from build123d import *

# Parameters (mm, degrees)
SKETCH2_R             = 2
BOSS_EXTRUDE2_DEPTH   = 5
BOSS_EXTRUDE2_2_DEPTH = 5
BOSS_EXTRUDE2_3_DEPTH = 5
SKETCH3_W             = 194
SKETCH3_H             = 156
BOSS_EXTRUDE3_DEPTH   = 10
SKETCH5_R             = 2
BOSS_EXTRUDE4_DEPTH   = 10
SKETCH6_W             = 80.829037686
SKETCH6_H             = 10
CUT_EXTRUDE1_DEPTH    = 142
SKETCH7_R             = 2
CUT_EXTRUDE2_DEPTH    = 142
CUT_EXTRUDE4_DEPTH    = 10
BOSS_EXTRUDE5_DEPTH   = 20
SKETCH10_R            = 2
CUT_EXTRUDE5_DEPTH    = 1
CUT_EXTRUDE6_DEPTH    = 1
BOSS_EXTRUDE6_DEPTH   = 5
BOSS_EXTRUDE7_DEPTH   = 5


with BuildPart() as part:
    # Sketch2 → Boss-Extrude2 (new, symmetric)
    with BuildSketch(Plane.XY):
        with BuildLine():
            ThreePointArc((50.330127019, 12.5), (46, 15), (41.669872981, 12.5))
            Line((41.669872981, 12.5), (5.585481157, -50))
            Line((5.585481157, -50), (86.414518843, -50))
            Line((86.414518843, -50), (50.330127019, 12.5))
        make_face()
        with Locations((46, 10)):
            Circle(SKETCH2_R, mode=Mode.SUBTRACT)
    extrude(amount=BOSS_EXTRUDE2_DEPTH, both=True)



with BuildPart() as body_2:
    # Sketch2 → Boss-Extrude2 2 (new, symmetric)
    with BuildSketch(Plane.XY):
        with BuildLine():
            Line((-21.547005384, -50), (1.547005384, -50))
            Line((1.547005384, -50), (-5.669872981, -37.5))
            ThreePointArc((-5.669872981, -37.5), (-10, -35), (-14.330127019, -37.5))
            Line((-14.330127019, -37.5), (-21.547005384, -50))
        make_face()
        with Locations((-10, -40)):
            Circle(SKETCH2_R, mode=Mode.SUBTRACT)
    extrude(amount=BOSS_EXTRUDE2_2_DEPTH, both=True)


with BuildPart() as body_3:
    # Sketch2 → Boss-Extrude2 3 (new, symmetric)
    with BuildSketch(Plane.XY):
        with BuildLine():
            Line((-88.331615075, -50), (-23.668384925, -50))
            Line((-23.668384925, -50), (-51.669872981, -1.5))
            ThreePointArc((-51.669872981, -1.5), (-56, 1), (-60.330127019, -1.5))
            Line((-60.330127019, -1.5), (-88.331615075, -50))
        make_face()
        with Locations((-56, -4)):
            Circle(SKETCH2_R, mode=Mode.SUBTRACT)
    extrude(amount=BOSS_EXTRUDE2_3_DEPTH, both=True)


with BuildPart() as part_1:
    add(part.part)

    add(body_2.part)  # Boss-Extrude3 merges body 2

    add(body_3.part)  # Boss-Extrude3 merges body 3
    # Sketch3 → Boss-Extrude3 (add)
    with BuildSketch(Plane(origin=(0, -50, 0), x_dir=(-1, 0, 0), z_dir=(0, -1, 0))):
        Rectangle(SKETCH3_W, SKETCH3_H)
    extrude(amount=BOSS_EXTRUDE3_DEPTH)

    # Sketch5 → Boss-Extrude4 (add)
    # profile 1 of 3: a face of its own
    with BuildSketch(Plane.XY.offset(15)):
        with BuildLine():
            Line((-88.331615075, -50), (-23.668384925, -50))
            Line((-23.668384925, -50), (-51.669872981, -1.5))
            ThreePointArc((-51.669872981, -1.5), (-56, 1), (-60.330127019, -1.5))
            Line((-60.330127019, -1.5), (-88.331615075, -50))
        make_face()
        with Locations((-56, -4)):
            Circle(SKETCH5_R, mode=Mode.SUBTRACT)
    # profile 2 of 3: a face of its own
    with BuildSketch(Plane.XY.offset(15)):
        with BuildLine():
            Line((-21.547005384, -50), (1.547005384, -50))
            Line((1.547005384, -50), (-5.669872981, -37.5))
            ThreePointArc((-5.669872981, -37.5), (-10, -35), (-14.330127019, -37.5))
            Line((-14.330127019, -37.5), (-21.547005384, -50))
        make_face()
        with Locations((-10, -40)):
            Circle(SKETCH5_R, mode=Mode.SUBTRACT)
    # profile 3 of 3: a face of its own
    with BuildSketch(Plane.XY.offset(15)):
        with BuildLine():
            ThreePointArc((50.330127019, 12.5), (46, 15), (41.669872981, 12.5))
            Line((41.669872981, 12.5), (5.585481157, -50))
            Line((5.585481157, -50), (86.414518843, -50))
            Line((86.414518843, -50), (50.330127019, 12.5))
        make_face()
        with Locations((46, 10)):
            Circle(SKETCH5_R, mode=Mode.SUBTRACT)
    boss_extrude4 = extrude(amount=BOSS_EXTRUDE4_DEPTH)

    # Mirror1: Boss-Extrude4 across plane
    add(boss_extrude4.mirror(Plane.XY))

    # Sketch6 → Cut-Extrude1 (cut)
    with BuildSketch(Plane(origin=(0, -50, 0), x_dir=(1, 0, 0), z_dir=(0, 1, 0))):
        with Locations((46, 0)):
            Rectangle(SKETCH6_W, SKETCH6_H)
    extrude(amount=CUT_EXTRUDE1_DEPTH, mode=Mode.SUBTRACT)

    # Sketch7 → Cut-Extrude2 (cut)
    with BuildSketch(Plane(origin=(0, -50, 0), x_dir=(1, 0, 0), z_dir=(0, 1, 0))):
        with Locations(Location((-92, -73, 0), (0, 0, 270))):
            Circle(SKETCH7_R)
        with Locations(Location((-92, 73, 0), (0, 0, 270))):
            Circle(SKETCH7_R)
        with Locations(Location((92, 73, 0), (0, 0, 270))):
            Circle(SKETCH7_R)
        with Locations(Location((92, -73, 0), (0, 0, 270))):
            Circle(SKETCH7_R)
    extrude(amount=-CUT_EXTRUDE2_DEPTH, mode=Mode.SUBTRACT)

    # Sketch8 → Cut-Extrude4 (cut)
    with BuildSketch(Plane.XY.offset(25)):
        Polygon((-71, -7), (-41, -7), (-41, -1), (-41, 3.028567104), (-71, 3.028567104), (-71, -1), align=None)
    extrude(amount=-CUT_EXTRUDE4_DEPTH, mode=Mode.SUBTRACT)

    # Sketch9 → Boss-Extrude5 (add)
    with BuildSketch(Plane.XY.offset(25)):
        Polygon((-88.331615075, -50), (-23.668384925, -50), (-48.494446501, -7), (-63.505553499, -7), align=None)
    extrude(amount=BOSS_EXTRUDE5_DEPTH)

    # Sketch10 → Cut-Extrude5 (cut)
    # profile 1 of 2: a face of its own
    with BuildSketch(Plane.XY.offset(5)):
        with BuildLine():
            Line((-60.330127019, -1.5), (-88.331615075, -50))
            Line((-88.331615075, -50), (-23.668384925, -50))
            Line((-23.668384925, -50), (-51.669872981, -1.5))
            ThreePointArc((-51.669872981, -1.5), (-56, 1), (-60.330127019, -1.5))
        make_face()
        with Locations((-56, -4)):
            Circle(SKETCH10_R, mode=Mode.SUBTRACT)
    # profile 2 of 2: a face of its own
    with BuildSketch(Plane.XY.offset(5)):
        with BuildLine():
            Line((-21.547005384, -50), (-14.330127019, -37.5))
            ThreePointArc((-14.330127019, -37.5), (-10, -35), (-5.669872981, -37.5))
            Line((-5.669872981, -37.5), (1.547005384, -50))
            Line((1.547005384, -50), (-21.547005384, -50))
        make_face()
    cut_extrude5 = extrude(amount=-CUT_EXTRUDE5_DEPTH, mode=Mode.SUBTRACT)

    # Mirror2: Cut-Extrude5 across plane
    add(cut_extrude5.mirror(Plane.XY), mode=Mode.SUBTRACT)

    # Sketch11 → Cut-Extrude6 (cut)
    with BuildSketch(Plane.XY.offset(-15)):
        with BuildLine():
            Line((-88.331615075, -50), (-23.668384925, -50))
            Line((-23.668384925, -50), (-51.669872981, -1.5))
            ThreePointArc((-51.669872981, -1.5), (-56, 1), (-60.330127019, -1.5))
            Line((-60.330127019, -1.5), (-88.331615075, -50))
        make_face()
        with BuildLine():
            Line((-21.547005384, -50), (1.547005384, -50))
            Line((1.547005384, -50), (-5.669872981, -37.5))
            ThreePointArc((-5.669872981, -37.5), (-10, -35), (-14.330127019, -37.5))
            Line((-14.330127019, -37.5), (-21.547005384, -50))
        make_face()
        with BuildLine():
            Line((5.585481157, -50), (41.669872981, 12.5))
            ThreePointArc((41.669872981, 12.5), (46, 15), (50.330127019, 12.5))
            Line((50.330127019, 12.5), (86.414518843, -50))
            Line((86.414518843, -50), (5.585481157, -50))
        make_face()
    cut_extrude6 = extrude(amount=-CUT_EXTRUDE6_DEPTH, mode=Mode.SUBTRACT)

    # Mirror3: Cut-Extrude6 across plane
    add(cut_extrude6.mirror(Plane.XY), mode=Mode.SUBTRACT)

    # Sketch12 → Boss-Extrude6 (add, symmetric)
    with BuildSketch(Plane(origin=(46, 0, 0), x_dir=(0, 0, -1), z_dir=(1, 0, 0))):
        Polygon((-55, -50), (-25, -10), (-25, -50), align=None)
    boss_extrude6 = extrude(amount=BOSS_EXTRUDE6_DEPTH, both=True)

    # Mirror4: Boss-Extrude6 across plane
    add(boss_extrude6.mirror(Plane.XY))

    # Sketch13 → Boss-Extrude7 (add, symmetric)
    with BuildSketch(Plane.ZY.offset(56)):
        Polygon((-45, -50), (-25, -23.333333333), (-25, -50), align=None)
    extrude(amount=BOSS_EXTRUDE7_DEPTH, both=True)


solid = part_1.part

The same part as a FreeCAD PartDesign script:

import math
import FreeCAD as App
import Part
import Sketcher
Q = App.Units.Quantity

doc = App.newDocument("Part")
body = doc.addObject("PartDesign::Body", "Body")

# Sketch on XY plane
sketch1 = body.newObject("Sketcher::SketchObject", "Sketch")
sketch1.AttachmentSupport = (doc.getObject("XY_Plane"), [""])
sketch1.MapMode = "FlatFace"
sketch1.addGeometry([
    Part.ArcOfCircle(Part.Circle(App.Vector(46, 10, 0), App.Vector(0, 0, 1), 5), math.radians(30), math.radians(150)),  # 0
    Part.LineSegment(App.Vector(41.7, 12.5, 0), App.Vector(5.6, -50, 0)),  # 1
    Part.LineSegment(App.Vector(5.6, -50, 0), App.Vector(86.4, -50, 0)),  # 2
    Part.LineSegment(App.Vector(86.4, -50, 0), App.Vector(50.3, 12.5, 0)),  # 3
    Part.Circle(App.Vector(46, 10, 0), App.Vector(0, 0, 1), 2),  # 4
], False)
sketch1.addConstraint([
    Sketcher.Constraint("Tangent", 0, 2, 1, 1),
    Sketcher.Constraint("Coincident", 1, 2, 2, 1),
    Sketcher.Constraint("Coincident", 2, 2, 3, 1),
    Sketcher.Constraint("Tangent", 3, 2, 0, 1),
    Sketcher.Constraint("Horizontal", 2),
    Sketcher.Constraint("Coincident", 4, 3, 0, 3),
    Sketcher.Constraint("Horizontal", 0, 2, 3, 2),
    Sketcher.Constraint("Diameter", 4, 4.0),
    Sketcher.Constraint("Radius", 0, 5.0),
    Sketcher.Constraint("Angle", 1, Q("-120 deg")),
    Sketcher.Constraint("DistanceX", -1, 1, 0, 3, 46.0),
    Sketcher.Constraint("DistanceY", -1, 1, 0, 3, 10.0),
    Sketcher.Constraint("DistanceY", 1, 2, -1, 1, 50.0),
])
pad1 = body.newObject("PartDesign::Pad", "Pad")
pad1.Profile = sketch1
pad1.Length = 10
pad1.Midplane = True
body2 = doc.addObject("PartDesign::Body", "Body001")

# Sketch on XY plane
sketch2 = body2.newObject("Sketcher::SketchObject", "Sketch001")
sketch2.AttachmentSupport = (doc.getObject("XY_Plane001"), [""])
sketch2.MapMode = "FlatFace"
sketch2.addGeometry([
    Part.LineSegment(App.Vector(-21.5, -50, 0), App.Vector(1.5, -50, 0)),  # 0
    Part.LineSegment(App.Vector(1.5, -50, 0), App.Vector(-5.7, -37.5, 0)),  # 1
    Part.ArcOfCircle(Part.Circle(App.Vector(-10, -40, 0), App.Vector(0, 0, 1), 5), math.radians(30), math.radians(150)),  # 2
    Part.LineSegment(App.Vector(-14.3, -37.5, 0), App.Vector(-21.5, -50, 0)),  # 3
    Part.Circle(App.Vector(-10, -40, 0), App.Vector(0, 0, 1), 2),  # 4
], False)
sketch2.addConstraint([
    Sketcher.Constraint("Coincident", 0, 2, 1, 1),
    Sketcher.Constraint("Tangent", 1, 2, 2, 1),
    Sketcher.Constraint("Tangent", 2, 2, 3, 1),
    Sketcher.Constraint("Coincident", 3, 2, 0, 1),
    Sketcher.Constraint("Horizontal", 0),
    Sketcher.Constraint("Coincident", 4, 3, 2, 3),
    Sketcher.Constraint("Horizontal", 1, 2, 2, 2),
    Sketcher.Constraint("Diameter", 4, 4.0),
    Sketcher.Constraint("Radius", 2, 5.0),
    Sketcher.Constraint("Angle", 1, Q("120 deg")),
    Sketcher.Constraint("DistanceX", 2, 3, -1, 1, 10.0),
    Sketcher.Constraint("DistanceY", 2, 3, -1, 1, 40.0),
    Sketcher.Constraint("DistanceY", 0, 2, -1, 1, 50.0),
])
pad2 = body2.newObject("PartDesign::Pad", "Pad001")
pad2.Profile = sketch2
pad2.Length = 10
pad2.Midplane = True
body3 = doc.addObject("PartDesign::Body", "Body002")

# Sketch on XY plane
sketch3 = body3.newObject("Sketcher::SketchObject", "Sketch002")
sketch3.AttachmentSupport = (doc.getObject("XY_Plane002"), [""])
sketch3.MapMode = "FlatFace"
sketch3.addGeometry([
    Part.LineSegment(App.Vector(-88.3, -50, 0), App.Vector(-23.7, -50, 0)),  # 0
    Part.LineSegment(App.Vector(-23.7, -50, 0), App.Vector(-51.7, -1.5, 0)),  # 1
    Part.ArcOfCircle(Part.Circle(App.Vector(-56, -4, 0), App.Vector(0, 0, 1), 5), math.radians(30), math.radians(150)),  # 2
    Part.LineSegment(App.Vector(-60.3, -1.5, 0), App.Vector(-88.3, -50, 0)),  # 3
    Part.Circle(App.Vector(-56, -4, 0), App.Vector(0, 0, 1), 2),  # 4
], False)
sketch3.addConstraint([
    Sketcher.Constraint("Coincident", 0, 2, 1, 1),
    Sketcher.Constraint("Tangent", 1, 2, 2, 1),
    Sketcher.Constraint("Tangent", 2, 2, 3, 1),
    Sketcher.Constraint("Coincident", 3, 2, 0, 1),
    Sketcher.Constraint("Horizontal", 0),
    Sketcher.Constraint("Coincident", 4, 3, 2, 3),
    Sketcher.Constraint("Horizontal", 1, 2, 2, 2),
    Sketcher.Constraint("Diameter", 4, 4.0),
    Sketcher.Constraint("Radius", 2, 5.0),
    Sketcher.Constraint("Angle", 1, Q("120 deg")),
    Sketcher.Constraint("DistanceX", 2, 3, -1, 1, 56.0),
    Sketcher.Constraint("DistanceY", 2, 3, -1, 1, 4.0),
    Sketcher.Constraint("DistanceY", 0, 2, -1, 1, 50.0),
])
pad3 = body3.newObject("PartDesign::Pad", "Pad002")
pad3.Profile = sketch3
pad3.Length = 10
pad3.Midplane = True
body.AllowCompound = True
doc.recompute()

boolean = body.newObject("PartDesign::Boolean", "Boolean")
boolean.Type = "Fuse"
boolean.addObjects([body2])
doc.recompute()

boolean2 = body.newObject("PartDesign::Boolean", "Boolean001")
boolean2.Type = "Fuse"
boolean2.addObjects([body3])

# Sketch on XZ plane
sketch4 = body.newObject("Sketcher::SketchObject", "Sketch003")
sketch4.AttachmentSupport = (doc.getObject("XZ_Plane"), [""])
sketch4.MapMode = "FlatFace"
sketch4.AttachmentOffset = App.Placement(App.Vector(0, 0, 50), App.Rotation())
sketch4.addGeometry([
    Part.LineSegment(App.Vector(97, -78, 0), App.Vector(97, 78, 0)),
    Part.LineSegment(App.Vector(97, 78, 0), App.Vector(-97, 78, 0)),
    Part.LineSegment(App.Vector(-97, 78, 0), App.Vector(-97, -78, 0)),
    Part.LineSegment(App.Vector(-97, -78, 0), App.Vector(97, -78, 0)),
], False)
sketch4.addConstraint([
    Sketcher.Constraint("Coincident", 0, 2, 1, 1),
    Sketcher.Constraint("Coincident", 1, 2, 2, 1),
    Sketcher.Constraint("Coincident", 2, 2, 3, 1),
    Sketcher.Constraint("Coincident", 3, 2, 0, 1),
    Sketcher.Constraint("Vertical", 0),
    Sketcher.Constraint("Horizontal", 1),
    Sketcher.Constraint("Vertical", 2),
    Sketcher.Constraint("Horizontal", 3),
    Sketcher.Constraint("Symmetric", 0, 2, 2, 2, -1, 1),
    Sketcher.Constraint("DistanceX", 1, 2, 1, 1, 194.0),
    Sketcher.Constraint("DistanceY", 0, 1, 0, 2, 156.0),
])
pad4 = body.newObject("PartDesign::Pad", "Pad003")
pad4.Profile = sketch4
pad4.Length = 10

# Sketch on XY plane
sketch5 = body.newObject("Sketcher::SketchObject", "Sketch004")
sketch5.AttachmentSupport = (doc.getObject("XY_Plane"), [""])
sketch5.MapMode = "FlatFace"
sketch5.AttachmentOffset = App.Placement(App.Vector(0, 0, 15), App.Rotation())
sketch5.addGeometry([
    Part.LineSegment(App.Vector(-88.3, -50, 0), App.Vector(-23.7, -50, 0)),  # 0
    Part.LineSegment(App.Vector(-23.7, -50, 0), App.Vector(-51.7, -1.5, 0)),  # 1
    Part.ArcOfCircle(Part.Circle(App.Vector(-56, -4, 0), App.Vector(0, 0, 1), 5), math.radians(30), math.radians(150)),  # 2
    Part.LineSegment(App.Vector(-60.3, -1.5, 0), App.Vector(-88.3, -50, 0)),  # 3
    Part.Circle(App.Vector(-56, -4, 0), App.Vector(0, 0, 1), 2),  # 4
    Part.LineSegment(App.Vector(-21.5, -50, 0), App.Vector(1.5, -50, 0)),  # 5
    Part.LineSegment(App.Vector(1.5, -50, 0), App.Vector(-5.7, -37.5, 0)),  # 6
    Part.ArcOfCircle(Part.Circle(App.Vector(-10, -40, 0), App.Vector(0, 0, 1), 5), math.radians(30), math.radians(150)),  # 7
    Part.LineSegment(App.Vector(-14.3, -37.5, 0), App.Vector(-21.5, -50, 0)),  # 8
    Part.Circle(App.Vector(-10, -40, 0), App.Vector(0, 0, 1), 2),  # 9
    Part.ArcOfCircle(Part.Circle(App.Vector(46, 10, 0), App.Vector(0, 0, 1), 5), math.radians(30), math.radians(150)),  # 10
    Part.LineSegment(App.Vector(41.7, 12.5, 0), App.Vector(5.6, -50, 0)),  # 11
    Part.LineSegment(App.Vector(5.6, -50, 0), App.Vector(86.4, -50, 0)),  # 12
    Part.LineSegment(App.Vector(86.4, -50, 0), App.Vector(50.3, 12.5, 0)),  # 13
    Part.Circle(App.Vector(46, 10, 0), App.Vector(0, 0, 1), 2),  # 14
], False)
sketch5.addConstraint([
    Sketcher.Constraint("Coincident", 0, 2, 1, 1),
    Sketcher.Constraint("Tangent", 1, 2, 2, 1),
    Sketcher.Constraint("Tangent", 2, 2, 3, 1),
    Sketcher.Constraint("Coincident", 3, 2, 0, 1),
    Sketcher.Constraint("Coincident", 5, 2, 6, 1),
    Sketcher.Constraint("Tangent", 6, 2, 7, 1),
    Sketcher.Constraint("Tangent", 7, 2, 8, 1),
    Sketcher.Constraint("Coincident", 8, 2, 5, 1),
    Sketcher.Constraint("Tangent", 10, 2, 11, 1),
    Sketcher.Constraint("Coincident", 11, 2, 12, 1),
    Sketcher.Constraint("Coincident", 12, 2, 13, 1),
    Sketcher.Constraint("Tangent", 13, 2, 10, 1),
    Sketcher.Constraint("Horizontal", 0),
    Sketcher.Constraint("Horizontal", 5),
    Sketcher.Constraint("Horizontal", 12),
    Sketcher.Constraint("Coincident", 4, 3, 2, 3),
    Sketcher.Constraint("Coincident", 9, 3, 7, 3),
    Sketcher.Constraint("Coincident", 14, 3, 10, 3),
    Sketcher.Constraint("Equal", 2, 7),
    Sketcher.Constraint("Equal", 4, 9),
    Sketcher.Constraint("Equal", 7, 10),
    Sketcher.Constraint("Equal", 9, 14),
    Sketcher.Constraint("Parallel", 1, 6),
    Sketcher.Constraint("Parallel", 3, 8),
    Sketcher.Constraint("Parallel", 8, 11),
    Sketcher.Constraint("Parallel", 6, 13),
    Sketcher.Constraint("Horizontal", 1, 2, 2, 2),
    Sketcher.Constraint("Horizontal", 3, 2, 5, 2),
    Sketcher.Constraint("Horizontal", 8, 2, 11, 2),
    Sketcher.Constraint("Diameter", 4, 4.0),
    Sketcher.Constraint("Radius", 2, 5.0),
    Sketcher.Constraint("Angle", 1, Q("120 deg")),
    Sketcher.Constraint("DistanceX", 2, 3, -1, 1, 56.0),
    Sketcher.Constraint("DistanceY", 2, 3, -1, 1, 4.0),
    Sketcher.Constraint("DistanceX", 7, 3, -1, 1, 10.0),
    Sketcher.Constraint("DistanceY", 7, 3, -1, 1, 40.0),
    Sketcher.Constraint("DistanceX", -1, 1, 10, 3, 46.0),
    Sketcher.Constraint("DistanceY", -1, 1, 10, 3, 10.0),
    Sketcher.Constraint("DistanceY", 0, 2, -1, 1, 50.0),
])
pad5 = body.newObject("PartDesign::Pad", "Pad004")
pad5.Profile = sketch5
pad5.Length = 10
doc.recompute()

mirrored = body.newObject("PartDesign::Mirrored", "Mirrored")
mirrored.Originals = [pad5]
mirrored.MirrorPlane = (doc.getObject("XY_Plane"), [""])
body.Tip = mirrored

# Sketch on XZ plane
sketch6 = body.newObject("Sketcher::SketchObject", "Sketch005")
sketch6.AttachmentSupport = (doc.getObject("XZ_Plane"), [""])
sketch6.MapMode = "FlatFace"
sketch6.AttachmentOffset = App.Placement(App.Vector(0, 0, 50), App.Rotation())
sketch6.addGeometry([
    Part.LineSegment(App.Vector(6, -5, 0), App.Vector(6, 5, 0)),
    Part.LineSegment(App.Vector(6, 5, 0), App.Vector(86, 5, 0)),
    Part.LineSegment(App.Vector(86, 5, 0), App.Vector(86, -5, 0)),
    Part.LineSegment(App.Vector(86, -5, 0), App.Vector(6, -5, 0)),
], False)
sketch6.addConstraint([
    Sketcher.Constraint("Coincident", 0, 2, 1, 1),
    Sketcher.Constraint("Coincident", 1, 2, 2, 1),
    Sketcher.Constraint("Coincident", 2, 2, 3, 1),
    Sketcher.Constraint("Coincident", 3, 2, 0, 1),
    Sketcher.Constraint("Vertical", 0),
    Sketcher.Constraint("Horizontal", 1),
    Sketcher.Constraint("Vertical", 2),
    Sketcher.Constraint("Horizontal", 3),
    Sketcher.Constraint("DistanceY", 0, 1, 0, 2, 10.0),
    Sketcher.Constraint("DistanceY", -1, 1, 0, 2, 5.0),
    Sketcher.Constraint("DistanceX", 1, 1, 1, 2, 80.829038),
    Sketcher.Constraint("DistanceX", -1, 1, 0, 2, 5.585481),
])
pocket1 = body.newObject("PartDesign::Pocket", "Pocket")
pocket1.Profile = sketch6
pocket1.Length = 142

# Sketch on XZ plane
sketch7 = body.newObject("Sketcher::SketchObject", "Sketch006")
sketch7.AttachmentSupport = (doc.getObject("XZ_Plane"), [""])
sketch7.MapMode = "FlatFace"
sketch7.AttachmentOffset = App.Placement(App.Vector(0, 0, 50), App.Rotation())
sketch7.addGeometry([
    Part.Circle(App.Vector(-92, 73, 0), App.Vector(0, 0, 1), 2),
    Part.Circle(App.Vector(-92, -73, 0), App.Vector(0, 0, 1), 2),
    Part.Circle(App.Vector(92, -73, 0), App.Vector(0, 0, 1), 2),
    Part.Circle(App.Vector(92, 73, 0), App.Vector(0, 0, 1), 2),
], False)
sketch7.addConstraint([
    Sketcher.Constraint("Equal", 0, 1),
    Sketcher.Constraint("Equal", 1, 2),
    Sketcher.Constraint("Equal", 2, 3),
    Sketcher.Constraint("Symmetric", 0, 3, 2, 3, -1, 1),
    Sketcher.Constraint("Symmetric", 1, 3, 3, 3, -1, 1),
    Sketcher.Constraint("Symmetric", 1, 3, 2, 3, -2),
    Sketcher.Constraint("Diameter", 0, 4.0),
    Sketcher.Constraint("DistanceX", 0, 3, -1, 1, 92.0),
    Sketcher.Constraint("DistanceY", -1, 1, 0, 3, 73.0),
])
pocket2 = body.newObject("PartDesign::Pocket", "Pocket001")
pocket2.Profile = sketch7
pocket2.Length = 142
pocket2.Reversed = True

# Sketch on XY plane
sketch8 = body.newObject("Sketcher::SketchObject", "Sketch007")
sketch8.AttachmentSupport = (doc.getObject("XY_Plane"), [""])
sketch8.MapMode = "FlatFace"
sketch8.AttachmentOffset = App.Placement(App.Vector(0, 0, 25), App.Rotation())
sketch8.addGeometry([
    Part.LineSegment(App.Vector(-71, -7, 0), App.Vector(-41, -7, 0)),
    Part.LineSegment(App.Vector(-41, -7, 0), App.Vector(-41, 3, 0)),
    Part.LineSegment(App.Vector(-41, 3, 0), App.Vector(-71, 3, 0)),
    Part.LineSegment(App.Vector(-71, 3, 0), App.Vector(-71, -7, 0)),
], False)
sketch8.addConstraint([
    Sketcher.Constraint("Coincident", 0, 2, 1, 1),
    Sketcher.Constraint("Coincident", 1, 2, 2, 1),
    Sketcher.Constraint("Coincident", 2, 2, 3, 1),
    Sketcher.Constraint("Coincident", 3, 2, 0, 1),
    Sketcher.Constraint("Horizontal", 0),
    Sketcher.Constraint("Vertical", 1),
    Sketcher.Constraint("Horizontal", 2),
    Sketcher.Constraint("Vertical", 3),
    Sketcher.Constraint("DistanceX", 0, 1, 0, 2, 30.0),
    Sketcher.Constraint("DistanceX", 0, 2, -1, 1, 41.0),
    Sketcher.Constraint("DistanceY", 0, 2, -1, 1, 7.0),
    Sketcher.Constraint("DistanceY", 1, 1, 1, 2, 10.028567),
])
pocket3 = body.newObject("PartDesign::Pocket", "Pocket002")
pocket3.Profile = sketch8
pocket3.Length = 10

# Sketch on XY plane
sketch9 = body.newObject("Sketcher::SketchObject", "Sketch008")
sketch9.AttachmentSupport = (doc.getObject("XY_Plane"), [""])
sketch9.MapMode = "FlatFace"
sketch9.AttachmentOffset = App.Placement(App.Vector(0, 0, 25), App.Rotation())
sketch9.addGeometry([
    Part.LineSegment(App.Vector(-88, -50, 0), App.Vector(-24, -50, 0)),
    Part.LineSegment(App.Vector(-24, -50, 0), App.Vector(-48, -7, 0)),
    Part.LineSegment(App.Vector(-48, -7, 0), App.Vector(-64, -7, 0)),
    Part.LineSegment(App.Vector(-64, -7, 0), App.Vector(-88, -50, 0)),
], False)
sketch9.addConstraint([
    Sketcher.Constraint("Coincident", 0, 2, 1, 1),
    Sketcher.Constraint("Coincident", 1, 2, 2, 1),
    Sketcher.Constraint("Coincident", 2, 2, 3, 1),
    Sketcher.Constraint("Coincident", 3, 2, 0, 1),
    Sketcher.Constraint("Horizontal", 0),
    Sketcher.Constraint("Horizontal", 2),
    Sketcher.Constraint("Equal", 1, 3),
    Sketcher.Constraint("Angle", 1, Q("120 deg")),
    Sketcher.Constraint("DistanceY", 0, 2, -1, 1, 50.0),
    Sketcher.Constraint("DistanceY", 1, 2, -1, 1, 7.0),
    Sketcher.Constraint("DistanceX", 0, 1, 0, 2, 64.66323),
    Sketcher.Constraint("DistanceX", 0, 2, -1, 1, 23.668385),
])
pad6 = body.newObject("PartDesign::Pad", "Pad005")
pad6.Profile = sketch9
pad6.Length = 20

# Sketch on XY plane
sketch10 = body.newObject("Sketcher::SketchObject", "Sketch009")
sketch10.AttachmentSupport = (doc.getObject("XY_Plane"), [""])
sketch10.MapMode = "FlatFace"
sketch10.AttachmentOffset = App.Placement(App.Vector(0, 0, 5), App.Rotation())
sketch10.addGeometry([
    Part.LineSegment(App.Vector(-60.3, -1.5, 0), App.Vector(-88.3, -50, 0)),  # 0
    Part.LineSegment(App.Vector(-88.3, -50, 0), App.Vector(-23.7, -50, 0)),  # 1
    Part.LineSegment(App.Vector(-23.7, -50, 0), App.Vector(-51.7, -1.5, 0)),  # 2
    Part.ArcOfCircle(Part.Circle(App.Vector(-56, -4, 0), App.Vector(0, 0, 1), 5), math.radians(30), math.radians(150)),  # 3
    Part.Circle(App.Vector(-56, -4, 0), App.Vector(0, 0, 1), 2),  # 4
    Part.LineSegment(App.Vector(-14.3, -37.5, 0), App.Vector(-21.5, -50, 0)),  # 5
    Part.LineSegment(App.Vector(-21.5, -50, 0), App.Vector(1.5, -50, 0)),  # 6
    Part.LineSegment(App.Vector(1.5, -50, 0), App.Vector(-5.7, -37.5, 0)),  # 7
    Part.ArcOfCircle(Part.Circle(App.Vector(-10, -40, 0), App.Vector(0, 0, 1), 5), math.radians(30), math.radians(150)),  # 8
], False)
sketch10.addConstraint([
    Sketcher.Constraint("Coincident", 0, 2, 1, 1),
    Sketcher.Constraint("Coincident", 1, 2, 2, 1),
    Sketcher.Constraint("Tangent", 2, 2, 3, 1),
    Sketcher.Constraint("Tangent", 3, 2, 0, 1),
    Sketcher.Constraint("Coincident", 5, 2, 6, 1),
    Sketcher.Constraint("Coincident", 6, 2, 7, 1),
    Sketcher.Constraint("Tangent", 7, 2, 8, 1),
    Sketcher.Constraint("Tangent", 8, 2, 5, 1),
    Sketcher.Constraint("Horizontal", 1),
    Sketcher.Constraint("Horizontal", 6),
    Sketcher.Constraint("Coincident", 4, 3, 3, 3),
    Sketcher.Constraint("Equal", 3, 8),
    Sketcher.Constraint("Parallel", 0, 5),
    Sketcher.Constraint("Parallel", 2, 7),
    Sketcher.Constraint("Horizontal", 2, 2, 3, 2),
    Sketcher.Constraint("Horizontal", 1, 2, 5, 2),
    Sketcher.Constraint("Diameter", 4, 4.0),
    Sketcher.Constraint("Radius", 3, 5.0),
    Sketcher.Constraint("Angle", 0, Q("-120 deg")),
    Sketcher.Constraint("DistanceX", 3, 3, -1, 1, 56.0),
    Sketcher.Constraint("DistanceY", 3, 3, -1, 1, 4.0),
    Sketcher.Constraint("DistanceX", 8, 3, -1, 1, 10.0),
    Sketcher.Constraint("DistanceY", 8, 3, -1, 1, 40.0),
    Sketcher.Constraint("DistanceY", 0, 2, -1, 1, 50.0),
])
pocket4 = body.newObject("PartDesign::Pocket", "Pocket003")
pocket4.Profile = sketch10
pocket4.Length = 1
doc.recompute()

mirrored2 = body.newObject("PartDesign::Mirrored", "Mirrored001")
mirrored2.Originals = [pocket4]
mirrored2.MirrorPlane = (doc.getObject("XY_Plane"), [""])
body.Tip = mirrored2

# Sketch on XY plane
sketch11 = body.newObject("Sketcher::SketchObject", "Sketch010")
sketch11.AttachmentSupport = (doc.getObject("XY_Plane"), [""])
sketch11.MapMode = "FlatFace"
sketch11.AttachmentOffset = App.Placement(App.Vector(0, 0, -15), App.Rotation())
sketch11.addGeometry([
    Part.LineSegment(App.Vector(-88, -50, 0), App.Vector(-24, -50, 0)),  # 0
    Part.LineSegment(App.Vector(-24, -50, 0), App.Vector(-52, -2, 0)),  # 1
    Part.ArcOfCircle(Part.Circle(App.Vector(-56, -4, 0), App.Vector(0, 0, 1), 5), math.radians(30), math.radians(150)),  # 2
    Part.LineSegment(App.Vector(-60, -2, 0), App.Vector(-88, -50, 0)),  # 3
    Part.LineSegment(App.Vector(-22, -50, 0), App.Vector(2, -50, 0)),  # 4
    Part.LineSegment(App.Vector(2, -50, 0), App.Vector(-6, -38, 0)),  # 5
    Part.ArcOfCircle(Part.Circle(App.Vector(-10, -40, 0), App.Vector(0, 0, 1), 5), math.radians(30), math.radians(150)),  # 6
    Part.LineSegment(App.Vector(-14, -38, 0), App.Vector(-22, -50, 0)),  # 7
    Part.LineSegment(App.Vector(42, 12, 0), App.Vector(6, -50, 0)),  # 8
    Part.LineSegment(App.Vector(6, -50, 0), App.Vector(86, -50, 0)),  # 9
    Part.LineSegment(App.Vector(86, -50, 0), App.Vector(50, 12, 0)),  # 10
    Part.ArcOfCircle(Part.Circle(App.Vector(46, 10, 0), App.Vector(0, 0, 1), 5), math.radians(30), math.radians(150)),  # 11
], False)
sketch11.addConstraint([
    Sketcher.Constraint("Coincident", 0, 2, 1, 1),
    Sketcher.Constraint("Tangent", 1, 2, 2, 1),
    Sketcher.Constraint("Tangent", 2, 2, 3, 1),
    Sketcher.Constraint("Coincident", 3, 2, 0, 1),
    Sketcher.Constraint("Coincident", 4, 2, 5, 1),
    Sketcher.Constraint("Tangent", 5, 2, 6, 1),
    Sketcher.Constraint("Tangent", 6, 2, 7, 1),
    Sketcher.Constraint("Coincident", 7, 2, 4, 1),
    Sketcher.Constraint("Coincident", 8, 2, 9, 1),
    Sketcher.Constraint("Coincident", 9, 2, 10, 1),
    Sketcher.Constraint("Tangent", 10, 2, 11, 1),
    Sketcher.Constraint("Tangent", 11, 2, 8, 1),
    Sketcher.Constraint("Horizontal", 0),
    Sketcher.Constraint("Horizontal", 4),
    Sketcher.Constraint("Horizontal", 9),
    Sketcher.Constraint("Equal", 2, 6),
    Sketcher.Constraint("Equal", 6, 11),
    Sketcher.Constraint("Parallel", 1, 5),
    Sketcher.Constraint("Parallel", 3, 7),
    Sketcher.Constraint("Parallel", 7, 8),
    Sketcher.Constraint("Parallel", 5, 10),
    Sketcher.Constraint("Horizontal", 1, 2, 2, 2),
    Sketcher.Constraint("Horizontal", 3, 2, 4, 2),
    Sketcher.Constraint("Horizontal", 7, 2, 8, 2),
    Sketcher.Constraint("Radius", 2, 5.0),
    Sketcher.Constraint("Angle", 1, Q("120 deg")),
    Sketcher.Constraint("DistanceX", 2, 3, -1, 1, 56.0),
    Sketcher.Constraint("DistanceY", 2, 3, -1, 1, 4.0),
    Sketcher.Constraint("DistanceX", 6, 3, -1, 1, 10.0),
    Sketcher.Constraint("DistanceY", 6, 3, -1, 1, 40.0),
    Sketcher.Constraint("DistanceX", -1, 1, 11, 3, 46.0),
    Sketcher.Constraint("DistanceY", -1, 1, 11, 3, 10.0),
    Sketcher.Constraint("DistanceY", 0, 2, -1, 1, 50.0),
])
pocket5 = body.newObject("PartDesign::Pocket", "Pocket004")
pocket5.Profile = sketch11
pocket5.Length = 1
doc.recompute()

mirrored3 = body.newObject("PartDesign::Mirrored", "Mirrored002")
mirrored3.Originals = [pocket5]
mirrored3.MirrorPlane = (doc.getObject("XY_Plane"), [""])
body.Tip = mirrored3

# Sketch on YZ plane
sketch12 = body.newObject("Sketcher::SketchObject", "Sketch011")
sketch12.AttachmentSupport = (doc.getObject("YZ_Plane"), [""])
sketch12.MapMode = "FlatFace"
sketch12.AttachmentOffset = App.Placement(App.Vector(0, 0, 46), App.Rotation())
sketch12.addGeometry([
    Part.LineSegment(App.Vector(-10, 25, 0), App.Vector(-50, 55, 0)),
    Part.LineSegment(App.Vector(-50, 55, 0), App.Vector(-50, 25, 0)),
    Part.LineSegment(App.Vector(-50, 25, 0), App.Vector(-10, 25, 0)),
], False)
sketch12.addConstraint([
    Sketcher.Constraint("Coincident", 0, 2, 1, 1),
    Sketcher.Constraint("Coincident", 1, 2, 2, 1),
    Sketcher.Constraint("Coincident", 2, 2, 0, 1),
    Sketcher.Constraint("Vertical", 1),
    Sketcher.Constraint("Horizontal", 2),
    Sketcher.Constraint("DistanceX", 2, 1, 2, 2, 40.0),
    Sketcher.Constraint("DistanceY", 1, 2, 1, 1, 30.0),
    Sketcher.Constraint("DistanceX", 0, 2, -1, 1, 50.0),
    Sketcher.Constraint("DistanceY", -1, 1, 0, 2, 55.0),
])
pad7 = body.newObject("PartDesign::Pad", "Pad006")
pad7.Profile = sketch12
pad7.Length = 10
pad7.Midplane = True
doc.recompute()

mirrored4 = body.newObject("PartDesign::Mirrored", "Mirrored003")
mirrored4.Originals = [pad7]
mirrored4.MirrorPlane = (doc.getObject("XY_Plane"), [""])
body.Tip = mirrored4

# Sketch on YZ plane
sketch13 = body.newObject("Sketcher::SketchObject", "Sketch012")
sketch13.AttachmentSupport = (doc.getObject("YZ_Plane"), [""])
sketch13.MapMode = "FlatFace"
sketch13.AttachmentOffset = App.Placement(App.Vector(0, 0, -56), App.Rotation())
sketch13.addGeometry([
    Part.LineSegment(App.Vector(-23, -25, 0), App.Vector(-50, -45, 0)),
    Part.LineSegment(App.Vector(-50, -45, 0), App.Vector(-50, -25, 0)),
    Part.LineSegment(App.Vector(-50, -25, 0), App.Vector(-23, -25, 0)),
], False)
sketch13.addConstraint([
    Sketcher.Constraint("Coincident", 0, 2, 1, 1),
    Sketcher.Constraint("Coincident", 1, 2, 2, 1),
    Sketcher.Constraint("Coincident", 2, 2, 0, 1),
    Sketcher.Constraint("Vertical", 1),
    Sketcher.Constraint("Horizontal", 2),
    Sketcher.Constraint("DistanceY", 1, 1, 1, 2, 20.0),
    Sketcher.Constraint("DistanceX", 0, 2, -1, 1, 50.0),
    Sketcher.Constraint("DistanceY", 0, 2, -1, 1, 45.0),
    Sketcher.Constraint("DistanceX", 2, 1, 2, 2, 26.666667),
])
pad8 = body.newObject("PartDesign::Pad", "Pad007")
pad8.Profile = sketch13
pad8.Length = 10
pad8.Midplane = True

doc.recompute()
